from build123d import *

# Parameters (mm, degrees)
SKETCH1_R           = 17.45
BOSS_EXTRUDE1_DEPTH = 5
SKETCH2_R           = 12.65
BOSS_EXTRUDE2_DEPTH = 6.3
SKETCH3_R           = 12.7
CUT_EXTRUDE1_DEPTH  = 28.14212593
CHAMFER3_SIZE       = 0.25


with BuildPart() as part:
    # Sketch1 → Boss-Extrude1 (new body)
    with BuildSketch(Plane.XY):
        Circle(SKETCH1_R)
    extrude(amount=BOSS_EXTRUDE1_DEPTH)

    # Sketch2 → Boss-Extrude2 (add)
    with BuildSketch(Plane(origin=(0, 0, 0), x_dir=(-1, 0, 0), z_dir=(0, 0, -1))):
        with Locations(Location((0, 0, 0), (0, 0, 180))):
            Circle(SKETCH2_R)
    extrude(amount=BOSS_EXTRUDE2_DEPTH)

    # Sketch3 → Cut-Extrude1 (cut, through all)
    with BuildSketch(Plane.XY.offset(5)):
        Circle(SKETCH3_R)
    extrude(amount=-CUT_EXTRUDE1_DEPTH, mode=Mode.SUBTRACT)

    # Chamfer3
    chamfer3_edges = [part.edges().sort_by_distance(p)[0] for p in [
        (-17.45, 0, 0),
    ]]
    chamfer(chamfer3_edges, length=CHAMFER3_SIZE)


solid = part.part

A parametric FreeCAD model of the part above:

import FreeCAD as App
import Part
import Sketcher


def edges_at(feature, points):
    """Names of the edges that pass closest to the given points."""
    edges = feature.Shape.Edges
    near = lambda p: min(range(len(edges)), key=lambda i: edges[i].distToShape(Part.Vertex(*p))[0])
    return sorted({f"Edge{near(p) + 1}" for p in points})

doc = App.newDocument("Part")
params = doc.addObject("Spreadsheet::Sheet", "Params")
for row, (alias, value) in enumerate([
    ("sketch1_diameter", "34.9 mm"),
    ("pad1_length", "5 mm"),
    ("sketch2_diameter", "25.3 mm"),
    ("pad2_length", "6.3 mm"),
    ("sketch3_diameter", "25.4 mm"),
    ("chamfer_size", "0.25 mm"),
], start=1):
    params.set(f"A{row}", alias)
    params.set(f"B{row}", "=" + value)
    params.setAlias(f"B{row}", alias)

body = doc.addObject("PartDesign::Body", "Body")

sketch1 = doc.addObject("Sketcher::SketchObject", "Sketch")
body.addObject(sketch1)
sketch1.AttachmentSupport = (doc.XY_Plane, [""])
sketch1.MapMode = "FlatFace"
sketch1.addGeometry(Part.Circle(App.Vector(0, 0, 0), App.Vector(0, 0, 1), 17.45), False)
sketch1.addConstraint([
    Sketcher.Constraint("Coincident", 0, 3, -1, 1),
    Sketcher.Constraint("Diameter", 0, 34.9),
])
sketch1.setExpression("Constraints[1]", "Params.sketch1_diameter")
pad1 = doc.addObject("PartDesign::Pad", "Pad")
body.addObject(pad1)
pad1.Profile = sketch1
pad1.setExpression("Length", "Params.pad1_length")

sketch2 = doc.addObject("Sketcher::SketchObject", "Sketch001")
body.addObject(sketch2)
sketch2.AttachmentSupport = (doc.XY_Plane, [""])
sketch2.MapMode = "FlatFace"
sketch2.addGeometry(Part.Circle(App.Vector(0, 0, 0), App.Vector(0, 0, 1), 12.65), False)
sketch2.addConstraint([
    Sketcher.Constraint("Coincident", 0, 3, -1, 1),
    Sketcher.Constraint("Diameter", 0, 25.3),
])
sketch2.setExpression("Constraints[1]", "Params.sketch2_diameter")
pad2 = doc.addObject("PartDesign::Pad", "Pad001")
body.addObject(pad2)
pad2.Profile = sketch2
pad2.setExpression("Length", "Params.pad2_length")
pad2.Reversed = True

sketch3 = doc.addObject("Sketcher::SketchObject", "Sketch002")
body.addObject(sketch3)
sketch3.AttachmentSupport = (doc.XY_Plane, [""])
sketch3.MapMode = "FlatFace"
sketch3.AttachmentOffset = App.Placement(App.Vector(0, 0, 5), App.Rotation())
sketch3.addGeometry(Part.Circle(App.Vector(0, 0, 0), App.Vector(0, 0, 1), 12.7), False)
sketch3.addConstraint([
    Sketcher.Constraint("Coincident", 0, 3, -1, 1),
    Sketcher.Constraint("Diameter", 0, 25.4),
])
sketch3.setExpression("Constraints[1]", "Params.sketch3_diameter")
pocket1 = doc.addObject("PartDesign::Pocket", "Pocket")
body.addObject(pocket1)
pocket1.Profile = sketch3
pocket1.Type = "ThroughAll"
doc.recompute()

chamfer = doc.addObject("PartDesign::Chamfer", "Chamfer")
body.addObject(chamfer)
chamfer.Base = (pocket1, edges_at(pocket1, [(-17.45, 0, 0)]))
chamfer.setExpression("Size", "Params.chamfer_size")

doc.recompute()
